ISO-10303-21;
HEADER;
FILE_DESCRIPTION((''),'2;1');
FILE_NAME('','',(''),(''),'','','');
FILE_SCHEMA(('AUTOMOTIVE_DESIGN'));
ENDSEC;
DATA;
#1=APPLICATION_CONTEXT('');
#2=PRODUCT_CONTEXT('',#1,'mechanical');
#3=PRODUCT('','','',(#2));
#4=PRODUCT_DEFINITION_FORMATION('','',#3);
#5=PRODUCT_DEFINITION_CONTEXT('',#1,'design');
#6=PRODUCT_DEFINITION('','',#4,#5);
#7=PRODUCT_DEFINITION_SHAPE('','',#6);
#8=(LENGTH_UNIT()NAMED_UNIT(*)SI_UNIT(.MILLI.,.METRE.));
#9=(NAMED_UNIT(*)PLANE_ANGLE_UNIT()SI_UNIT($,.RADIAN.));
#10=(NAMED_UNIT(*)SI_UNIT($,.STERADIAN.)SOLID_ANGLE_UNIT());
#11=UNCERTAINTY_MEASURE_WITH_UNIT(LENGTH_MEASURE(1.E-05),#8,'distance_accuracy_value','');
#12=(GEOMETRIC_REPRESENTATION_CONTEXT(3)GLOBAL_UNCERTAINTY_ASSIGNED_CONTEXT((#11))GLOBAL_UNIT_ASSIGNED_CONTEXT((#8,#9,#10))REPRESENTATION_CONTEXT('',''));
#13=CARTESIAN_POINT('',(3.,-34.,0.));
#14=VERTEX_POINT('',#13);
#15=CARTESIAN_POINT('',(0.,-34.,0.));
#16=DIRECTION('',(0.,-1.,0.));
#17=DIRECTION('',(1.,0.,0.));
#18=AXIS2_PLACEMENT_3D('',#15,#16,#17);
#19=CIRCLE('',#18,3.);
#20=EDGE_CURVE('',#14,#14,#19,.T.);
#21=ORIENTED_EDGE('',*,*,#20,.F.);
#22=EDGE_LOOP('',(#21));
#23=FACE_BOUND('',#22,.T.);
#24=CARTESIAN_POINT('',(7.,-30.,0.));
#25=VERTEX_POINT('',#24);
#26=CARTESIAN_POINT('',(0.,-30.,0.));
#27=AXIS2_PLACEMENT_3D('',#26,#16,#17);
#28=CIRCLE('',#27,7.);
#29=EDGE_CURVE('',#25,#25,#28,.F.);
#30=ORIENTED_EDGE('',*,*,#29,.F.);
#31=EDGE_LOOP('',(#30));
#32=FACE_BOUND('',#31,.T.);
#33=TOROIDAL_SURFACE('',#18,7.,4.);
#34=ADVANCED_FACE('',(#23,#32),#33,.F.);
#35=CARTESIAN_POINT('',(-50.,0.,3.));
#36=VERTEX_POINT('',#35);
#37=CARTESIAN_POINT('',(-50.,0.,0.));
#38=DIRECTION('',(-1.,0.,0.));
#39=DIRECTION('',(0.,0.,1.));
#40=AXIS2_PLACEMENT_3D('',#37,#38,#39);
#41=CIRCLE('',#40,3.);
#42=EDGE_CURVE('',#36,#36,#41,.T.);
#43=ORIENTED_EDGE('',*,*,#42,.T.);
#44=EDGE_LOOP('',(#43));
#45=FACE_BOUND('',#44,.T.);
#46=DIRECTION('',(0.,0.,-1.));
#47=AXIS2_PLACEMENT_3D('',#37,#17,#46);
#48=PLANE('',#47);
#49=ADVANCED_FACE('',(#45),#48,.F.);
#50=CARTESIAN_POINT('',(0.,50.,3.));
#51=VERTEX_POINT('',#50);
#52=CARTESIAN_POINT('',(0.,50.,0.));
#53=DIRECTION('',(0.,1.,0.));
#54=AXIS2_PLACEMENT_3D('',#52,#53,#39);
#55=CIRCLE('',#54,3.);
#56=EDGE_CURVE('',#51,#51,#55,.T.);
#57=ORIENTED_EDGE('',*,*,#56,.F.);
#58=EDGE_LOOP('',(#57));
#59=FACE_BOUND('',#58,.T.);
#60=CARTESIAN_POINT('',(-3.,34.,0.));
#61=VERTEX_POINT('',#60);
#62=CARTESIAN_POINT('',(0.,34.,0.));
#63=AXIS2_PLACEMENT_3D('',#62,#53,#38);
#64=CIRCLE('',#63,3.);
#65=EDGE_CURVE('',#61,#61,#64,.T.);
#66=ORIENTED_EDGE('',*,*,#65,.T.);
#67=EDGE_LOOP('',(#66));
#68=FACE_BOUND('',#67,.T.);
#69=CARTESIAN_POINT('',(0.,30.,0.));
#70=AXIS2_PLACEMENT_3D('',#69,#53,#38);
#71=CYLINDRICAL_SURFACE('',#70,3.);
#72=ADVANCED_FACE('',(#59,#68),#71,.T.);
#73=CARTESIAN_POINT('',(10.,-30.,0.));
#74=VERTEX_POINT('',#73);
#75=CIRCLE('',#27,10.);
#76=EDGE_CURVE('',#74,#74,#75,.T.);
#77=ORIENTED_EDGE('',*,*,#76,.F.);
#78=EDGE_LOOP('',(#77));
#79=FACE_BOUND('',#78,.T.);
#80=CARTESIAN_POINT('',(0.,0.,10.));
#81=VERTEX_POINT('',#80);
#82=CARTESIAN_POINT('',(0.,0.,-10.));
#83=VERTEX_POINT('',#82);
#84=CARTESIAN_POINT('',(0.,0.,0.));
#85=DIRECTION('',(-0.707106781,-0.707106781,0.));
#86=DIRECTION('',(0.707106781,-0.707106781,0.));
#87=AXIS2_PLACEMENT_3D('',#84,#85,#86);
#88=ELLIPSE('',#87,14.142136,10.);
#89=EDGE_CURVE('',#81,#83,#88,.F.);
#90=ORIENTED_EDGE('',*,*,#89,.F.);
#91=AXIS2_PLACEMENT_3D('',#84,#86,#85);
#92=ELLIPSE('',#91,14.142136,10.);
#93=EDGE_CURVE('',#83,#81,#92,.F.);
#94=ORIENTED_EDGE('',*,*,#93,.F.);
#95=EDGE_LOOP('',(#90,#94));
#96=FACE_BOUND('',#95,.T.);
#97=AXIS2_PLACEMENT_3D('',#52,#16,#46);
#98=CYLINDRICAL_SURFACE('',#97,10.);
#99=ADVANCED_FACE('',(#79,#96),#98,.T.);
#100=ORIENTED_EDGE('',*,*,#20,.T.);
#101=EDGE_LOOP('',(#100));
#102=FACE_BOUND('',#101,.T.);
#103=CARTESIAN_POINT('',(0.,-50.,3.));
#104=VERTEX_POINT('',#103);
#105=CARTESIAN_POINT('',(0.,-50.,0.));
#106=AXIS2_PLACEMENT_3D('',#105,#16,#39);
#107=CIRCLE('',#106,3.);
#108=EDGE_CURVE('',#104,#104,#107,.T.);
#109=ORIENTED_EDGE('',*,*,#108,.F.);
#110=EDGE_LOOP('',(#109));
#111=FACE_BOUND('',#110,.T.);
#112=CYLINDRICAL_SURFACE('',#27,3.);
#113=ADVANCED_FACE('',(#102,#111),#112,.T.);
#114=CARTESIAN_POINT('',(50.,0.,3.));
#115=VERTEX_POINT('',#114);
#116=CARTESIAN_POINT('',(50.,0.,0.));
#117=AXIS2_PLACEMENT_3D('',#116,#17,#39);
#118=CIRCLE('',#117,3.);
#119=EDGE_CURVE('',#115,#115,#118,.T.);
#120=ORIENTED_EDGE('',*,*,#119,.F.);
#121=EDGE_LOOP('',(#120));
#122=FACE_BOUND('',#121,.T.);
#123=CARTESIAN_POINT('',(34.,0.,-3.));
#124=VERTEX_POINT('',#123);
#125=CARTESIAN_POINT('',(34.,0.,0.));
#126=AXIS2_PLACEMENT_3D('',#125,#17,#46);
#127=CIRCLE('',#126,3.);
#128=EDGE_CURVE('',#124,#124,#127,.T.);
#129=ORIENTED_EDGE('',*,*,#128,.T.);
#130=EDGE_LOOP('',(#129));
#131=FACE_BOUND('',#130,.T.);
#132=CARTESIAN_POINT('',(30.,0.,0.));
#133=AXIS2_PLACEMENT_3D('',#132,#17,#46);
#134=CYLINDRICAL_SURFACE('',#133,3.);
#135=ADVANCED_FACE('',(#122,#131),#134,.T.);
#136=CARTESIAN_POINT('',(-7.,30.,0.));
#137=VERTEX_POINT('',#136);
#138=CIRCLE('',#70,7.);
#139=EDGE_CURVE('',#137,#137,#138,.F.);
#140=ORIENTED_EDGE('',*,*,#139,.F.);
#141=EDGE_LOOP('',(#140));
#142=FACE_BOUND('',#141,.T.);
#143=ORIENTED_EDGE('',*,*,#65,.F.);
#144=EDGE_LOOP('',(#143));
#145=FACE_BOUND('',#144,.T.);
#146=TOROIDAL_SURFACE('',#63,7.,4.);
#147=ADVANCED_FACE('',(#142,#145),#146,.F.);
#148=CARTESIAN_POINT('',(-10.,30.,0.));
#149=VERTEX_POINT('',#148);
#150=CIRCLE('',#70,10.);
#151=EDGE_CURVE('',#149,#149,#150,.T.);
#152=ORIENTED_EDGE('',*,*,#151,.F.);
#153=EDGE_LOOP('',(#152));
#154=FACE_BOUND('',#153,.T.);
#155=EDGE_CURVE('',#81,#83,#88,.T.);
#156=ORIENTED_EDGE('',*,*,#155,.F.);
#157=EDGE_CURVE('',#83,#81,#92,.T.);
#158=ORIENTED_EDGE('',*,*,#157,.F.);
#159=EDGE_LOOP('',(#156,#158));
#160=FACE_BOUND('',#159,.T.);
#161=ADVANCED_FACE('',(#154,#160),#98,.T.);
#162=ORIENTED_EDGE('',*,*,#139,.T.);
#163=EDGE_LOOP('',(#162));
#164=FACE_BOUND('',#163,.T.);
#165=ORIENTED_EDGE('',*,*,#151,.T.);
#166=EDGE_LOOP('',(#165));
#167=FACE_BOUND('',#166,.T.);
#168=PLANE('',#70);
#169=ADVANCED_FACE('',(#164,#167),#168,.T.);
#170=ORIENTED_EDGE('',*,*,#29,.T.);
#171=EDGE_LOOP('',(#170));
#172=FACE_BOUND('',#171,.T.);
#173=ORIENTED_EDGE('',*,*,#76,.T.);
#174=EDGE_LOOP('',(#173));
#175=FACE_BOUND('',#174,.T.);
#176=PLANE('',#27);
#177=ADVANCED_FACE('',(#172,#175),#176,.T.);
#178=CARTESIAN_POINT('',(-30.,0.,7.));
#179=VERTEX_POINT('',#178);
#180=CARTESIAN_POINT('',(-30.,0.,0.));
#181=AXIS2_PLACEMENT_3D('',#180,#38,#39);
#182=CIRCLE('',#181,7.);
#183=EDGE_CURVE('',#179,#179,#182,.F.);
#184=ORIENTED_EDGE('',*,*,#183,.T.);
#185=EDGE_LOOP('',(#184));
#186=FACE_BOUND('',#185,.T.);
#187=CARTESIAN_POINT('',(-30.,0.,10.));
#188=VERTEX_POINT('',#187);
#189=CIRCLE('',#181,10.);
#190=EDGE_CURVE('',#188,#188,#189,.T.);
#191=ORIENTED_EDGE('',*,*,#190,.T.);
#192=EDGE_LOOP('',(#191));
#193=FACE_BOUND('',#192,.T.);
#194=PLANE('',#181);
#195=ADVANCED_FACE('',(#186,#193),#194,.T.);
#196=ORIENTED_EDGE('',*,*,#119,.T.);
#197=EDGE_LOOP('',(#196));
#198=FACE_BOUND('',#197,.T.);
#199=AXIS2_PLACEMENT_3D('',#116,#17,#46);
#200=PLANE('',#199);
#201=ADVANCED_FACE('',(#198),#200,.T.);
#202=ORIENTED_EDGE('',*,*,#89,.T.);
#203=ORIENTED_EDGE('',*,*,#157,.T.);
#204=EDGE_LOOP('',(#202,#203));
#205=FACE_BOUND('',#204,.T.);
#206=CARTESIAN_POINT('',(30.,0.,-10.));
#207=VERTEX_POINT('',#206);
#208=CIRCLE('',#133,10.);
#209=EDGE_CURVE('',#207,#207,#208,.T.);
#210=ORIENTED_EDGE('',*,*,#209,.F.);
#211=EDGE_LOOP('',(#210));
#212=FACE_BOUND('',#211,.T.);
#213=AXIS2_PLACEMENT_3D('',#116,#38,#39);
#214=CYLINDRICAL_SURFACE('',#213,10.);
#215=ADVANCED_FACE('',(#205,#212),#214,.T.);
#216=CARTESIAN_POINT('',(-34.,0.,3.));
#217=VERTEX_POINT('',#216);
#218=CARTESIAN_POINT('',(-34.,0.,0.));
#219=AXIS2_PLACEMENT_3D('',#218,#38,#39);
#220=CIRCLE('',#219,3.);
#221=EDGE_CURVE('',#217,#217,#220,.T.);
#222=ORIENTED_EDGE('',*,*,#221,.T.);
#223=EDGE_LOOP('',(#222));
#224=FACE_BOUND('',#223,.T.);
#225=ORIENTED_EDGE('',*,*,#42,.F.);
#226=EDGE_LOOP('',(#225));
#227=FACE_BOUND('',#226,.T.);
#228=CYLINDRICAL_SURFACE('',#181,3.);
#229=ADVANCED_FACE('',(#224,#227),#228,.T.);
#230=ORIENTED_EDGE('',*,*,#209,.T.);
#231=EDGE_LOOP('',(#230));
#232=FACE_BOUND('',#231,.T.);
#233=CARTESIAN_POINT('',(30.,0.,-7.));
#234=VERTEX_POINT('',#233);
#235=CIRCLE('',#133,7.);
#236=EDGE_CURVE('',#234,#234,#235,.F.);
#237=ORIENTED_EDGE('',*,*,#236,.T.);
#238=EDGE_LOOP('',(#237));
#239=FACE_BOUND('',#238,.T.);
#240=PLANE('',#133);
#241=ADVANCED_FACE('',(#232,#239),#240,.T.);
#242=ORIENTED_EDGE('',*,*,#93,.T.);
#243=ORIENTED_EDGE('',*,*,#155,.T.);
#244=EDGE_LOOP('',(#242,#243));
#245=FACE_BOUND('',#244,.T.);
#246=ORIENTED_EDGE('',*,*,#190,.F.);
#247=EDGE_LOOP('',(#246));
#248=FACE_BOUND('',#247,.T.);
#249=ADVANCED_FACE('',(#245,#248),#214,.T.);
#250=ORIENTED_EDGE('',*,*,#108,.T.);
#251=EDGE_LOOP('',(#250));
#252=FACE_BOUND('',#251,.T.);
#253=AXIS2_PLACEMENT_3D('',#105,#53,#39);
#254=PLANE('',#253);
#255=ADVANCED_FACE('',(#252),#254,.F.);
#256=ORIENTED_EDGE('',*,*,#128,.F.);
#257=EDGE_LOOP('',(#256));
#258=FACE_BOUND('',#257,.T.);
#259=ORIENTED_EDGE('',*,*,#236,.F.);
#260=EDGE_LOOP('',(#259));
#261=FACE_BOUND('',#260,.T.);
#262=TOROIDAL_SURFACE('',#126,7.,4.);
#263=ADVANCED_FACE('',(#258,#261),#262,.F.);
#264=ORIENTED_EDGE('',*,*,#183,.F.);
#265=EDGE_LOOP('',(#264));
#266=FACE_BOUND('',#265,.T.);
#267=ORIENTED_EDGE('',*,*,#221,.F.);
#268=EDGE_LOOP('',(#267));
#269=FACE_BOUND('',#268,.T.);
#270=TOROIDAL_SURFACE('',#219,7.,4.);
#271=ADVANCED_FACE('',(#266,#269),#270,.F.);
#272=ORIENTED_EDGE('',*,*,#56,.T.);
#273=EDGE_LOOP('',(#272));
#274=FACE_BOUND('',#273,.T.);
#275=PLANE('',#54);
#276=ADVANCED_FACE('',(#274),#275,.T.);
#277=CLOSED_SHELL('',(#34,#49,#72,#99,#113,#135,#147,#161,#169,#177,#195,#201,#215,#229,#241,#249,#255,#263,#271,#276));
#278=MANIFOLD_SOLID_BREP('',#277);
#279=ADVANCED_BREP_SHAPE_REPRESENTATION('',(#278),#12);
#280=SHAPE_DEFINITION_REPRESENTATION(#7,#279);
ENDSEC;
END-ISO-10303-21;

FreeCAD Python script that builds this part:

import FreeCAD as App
import Part
import Sketcher
from FreeCAD import Vector
Q = App.Units.Quantity


def edges_at(feature, points):
    """Names of the edges that pass closest to the given points."""
    edges = feature.Shape.Edges
    near = lambda p: min(range(len(edges)), key=lambda i: edges[i].distToShape(Part.Vertex(*p))[0])
    return sorted({f"Edge{near(p) + 1}" for p in points})


def add_polygon(sketch, points):
    """Adds a closed chain of lines whose ends are joined by coincident constraints."""
    first, n = sketch.GeometryCount, len(points)
    for a, b in zip(points, points[1:] + points[:1]):
        sketch.addGeometry(Part.LineSegment(App.Vector(*a, 0), App.Vector(*b, 0)), False)
    for i in range(n):
        sketch.addConstraint(Sketcher.Constraint("Coincident", first + i, 2, first + (i + 1) % n, 1))

doc = App.newDocument("Part")
body = doc.addObject("PartDesign::Body", "Body")

sketch1 = body.newObject("Sketcher::SketchObject", "Sketch")
sketch1.AttachmentSupport = (doc.getObject("XZ_Plane"), [""])
sketch1.MapMode = "FlatFace"
sketch1.addGeometry(Part.Circle(Vector(0, 0, 0), Vector(0, 0, 1), 10), False)
sketch1.addConstraint([
    Sketcher.Constraint("Coincident", 0, 3, -1, 1),
    Sketcher.Constraint("Diameter", 0, Q("20 mm")),
])
pad1 = body.newObject("PartDesign::Pad", "Pad")
pad1.Profile = sketch1
pad1.Length = 100
pad1.Midplane = True

sketch2 = body.newObject("Sketcher::SketchObject", "Sketch001")
sketch2.AttachmentSupport = (doc.getObject("YZ_Plane"), [""])
sketch2.MapMode = "FlatFace"
sketch2.addGeometry(Part.Circle(Vector(0, 0, 0), Vector(0, 0, 1), 10), False)
sketch2.addConstraint([
    Sketcher.Constraint("Coincident", 0, 3, -1, 1),
    Sketcher.Constraint("Diameter", 0, Q("20 mm")),
])
pad2 = body.newObject("PartDesign::Pad", "Pad001")
pad2.Profile = sketch2
pad2.Length = 100
pad2.Midplane = True

sketch3 = body.newObject("Sketcher::SketchObject", "Sketch002")
sketch3.AttachmentSupport = (doc.getObject("YZ_Plane"), [""])
sketch3.MapMode = "FlatFace"
sketch3.AttachmentOffset = App.Placement(Vector(0, 0, -50), App.Rotation())
add_polygon(sketch3, [(65.3, -25.3), (-65.3, -25.3), (-65.3, 25.3), (65.3, 25.3)])
sketch3.addGeometry(Part.Circle(Vector(0, 0, 0), Vector(0, 0, 1), 3), False)
sketch3.addConstraint([
    Sketcher.Constraint("Horizontal", 0),
    Sketcher.Constraint("Vertical", 1),
    Sketcher.Constraint("Horizontal", 2),
    Sketcher.Constraint("Vertical", 3),
    Sketcher.Constraint("Coincident", 4, 3, -1, 1),
    Sketcher.Constraint("Symmetric", 0, 2, 2, 2, -1, 1),
    Sketcher.Constraint("Diameter", 4, Q("6 mm")),
    Sketcher.Constraint("DistanceX", 0, 2, 0, 1, Q("130.566 mm")),
    Sketcher.Constraint("DistanceY", 1, 1, 1, 2, Q("50.566 mm")),
])
pocket1 = body.newObject("PartDesign::Pocket", "Pocket")
pocket1.Profile = sketch3
pocket1.Length = 20
pocket1.Reversed = True
doc.recompute()

fillet = body.newObject("PartDesign::Fillet", "Fillet")
fillet.Base = (pocket1, edges_at(pocket1, [(-30, 0, -3)]))
fillet.Radius = 4
doc.recompute()

polarpattern = body.newObject("PartDesign::PolarPattern", "PolarPattern")
polarpattern.Originals = [pocket1]
polarpattern.Axis = (doc.getObject("Z_Axis"), [""])
polarpattern.Angle = 360
polarpattern.Occurrences = 4
body.Tip = polarpattern
doc.recompute()

fillet2 = body.newObject("PartDesign::Fillet", "Fillet001")
fillet2.Base = (polarpattern, edges_at(polarpattern, [(0, -30, -3), (30, 0, -3), (0, 30, -3)]))
fillet2.Radius = 4

doc.recompute()
